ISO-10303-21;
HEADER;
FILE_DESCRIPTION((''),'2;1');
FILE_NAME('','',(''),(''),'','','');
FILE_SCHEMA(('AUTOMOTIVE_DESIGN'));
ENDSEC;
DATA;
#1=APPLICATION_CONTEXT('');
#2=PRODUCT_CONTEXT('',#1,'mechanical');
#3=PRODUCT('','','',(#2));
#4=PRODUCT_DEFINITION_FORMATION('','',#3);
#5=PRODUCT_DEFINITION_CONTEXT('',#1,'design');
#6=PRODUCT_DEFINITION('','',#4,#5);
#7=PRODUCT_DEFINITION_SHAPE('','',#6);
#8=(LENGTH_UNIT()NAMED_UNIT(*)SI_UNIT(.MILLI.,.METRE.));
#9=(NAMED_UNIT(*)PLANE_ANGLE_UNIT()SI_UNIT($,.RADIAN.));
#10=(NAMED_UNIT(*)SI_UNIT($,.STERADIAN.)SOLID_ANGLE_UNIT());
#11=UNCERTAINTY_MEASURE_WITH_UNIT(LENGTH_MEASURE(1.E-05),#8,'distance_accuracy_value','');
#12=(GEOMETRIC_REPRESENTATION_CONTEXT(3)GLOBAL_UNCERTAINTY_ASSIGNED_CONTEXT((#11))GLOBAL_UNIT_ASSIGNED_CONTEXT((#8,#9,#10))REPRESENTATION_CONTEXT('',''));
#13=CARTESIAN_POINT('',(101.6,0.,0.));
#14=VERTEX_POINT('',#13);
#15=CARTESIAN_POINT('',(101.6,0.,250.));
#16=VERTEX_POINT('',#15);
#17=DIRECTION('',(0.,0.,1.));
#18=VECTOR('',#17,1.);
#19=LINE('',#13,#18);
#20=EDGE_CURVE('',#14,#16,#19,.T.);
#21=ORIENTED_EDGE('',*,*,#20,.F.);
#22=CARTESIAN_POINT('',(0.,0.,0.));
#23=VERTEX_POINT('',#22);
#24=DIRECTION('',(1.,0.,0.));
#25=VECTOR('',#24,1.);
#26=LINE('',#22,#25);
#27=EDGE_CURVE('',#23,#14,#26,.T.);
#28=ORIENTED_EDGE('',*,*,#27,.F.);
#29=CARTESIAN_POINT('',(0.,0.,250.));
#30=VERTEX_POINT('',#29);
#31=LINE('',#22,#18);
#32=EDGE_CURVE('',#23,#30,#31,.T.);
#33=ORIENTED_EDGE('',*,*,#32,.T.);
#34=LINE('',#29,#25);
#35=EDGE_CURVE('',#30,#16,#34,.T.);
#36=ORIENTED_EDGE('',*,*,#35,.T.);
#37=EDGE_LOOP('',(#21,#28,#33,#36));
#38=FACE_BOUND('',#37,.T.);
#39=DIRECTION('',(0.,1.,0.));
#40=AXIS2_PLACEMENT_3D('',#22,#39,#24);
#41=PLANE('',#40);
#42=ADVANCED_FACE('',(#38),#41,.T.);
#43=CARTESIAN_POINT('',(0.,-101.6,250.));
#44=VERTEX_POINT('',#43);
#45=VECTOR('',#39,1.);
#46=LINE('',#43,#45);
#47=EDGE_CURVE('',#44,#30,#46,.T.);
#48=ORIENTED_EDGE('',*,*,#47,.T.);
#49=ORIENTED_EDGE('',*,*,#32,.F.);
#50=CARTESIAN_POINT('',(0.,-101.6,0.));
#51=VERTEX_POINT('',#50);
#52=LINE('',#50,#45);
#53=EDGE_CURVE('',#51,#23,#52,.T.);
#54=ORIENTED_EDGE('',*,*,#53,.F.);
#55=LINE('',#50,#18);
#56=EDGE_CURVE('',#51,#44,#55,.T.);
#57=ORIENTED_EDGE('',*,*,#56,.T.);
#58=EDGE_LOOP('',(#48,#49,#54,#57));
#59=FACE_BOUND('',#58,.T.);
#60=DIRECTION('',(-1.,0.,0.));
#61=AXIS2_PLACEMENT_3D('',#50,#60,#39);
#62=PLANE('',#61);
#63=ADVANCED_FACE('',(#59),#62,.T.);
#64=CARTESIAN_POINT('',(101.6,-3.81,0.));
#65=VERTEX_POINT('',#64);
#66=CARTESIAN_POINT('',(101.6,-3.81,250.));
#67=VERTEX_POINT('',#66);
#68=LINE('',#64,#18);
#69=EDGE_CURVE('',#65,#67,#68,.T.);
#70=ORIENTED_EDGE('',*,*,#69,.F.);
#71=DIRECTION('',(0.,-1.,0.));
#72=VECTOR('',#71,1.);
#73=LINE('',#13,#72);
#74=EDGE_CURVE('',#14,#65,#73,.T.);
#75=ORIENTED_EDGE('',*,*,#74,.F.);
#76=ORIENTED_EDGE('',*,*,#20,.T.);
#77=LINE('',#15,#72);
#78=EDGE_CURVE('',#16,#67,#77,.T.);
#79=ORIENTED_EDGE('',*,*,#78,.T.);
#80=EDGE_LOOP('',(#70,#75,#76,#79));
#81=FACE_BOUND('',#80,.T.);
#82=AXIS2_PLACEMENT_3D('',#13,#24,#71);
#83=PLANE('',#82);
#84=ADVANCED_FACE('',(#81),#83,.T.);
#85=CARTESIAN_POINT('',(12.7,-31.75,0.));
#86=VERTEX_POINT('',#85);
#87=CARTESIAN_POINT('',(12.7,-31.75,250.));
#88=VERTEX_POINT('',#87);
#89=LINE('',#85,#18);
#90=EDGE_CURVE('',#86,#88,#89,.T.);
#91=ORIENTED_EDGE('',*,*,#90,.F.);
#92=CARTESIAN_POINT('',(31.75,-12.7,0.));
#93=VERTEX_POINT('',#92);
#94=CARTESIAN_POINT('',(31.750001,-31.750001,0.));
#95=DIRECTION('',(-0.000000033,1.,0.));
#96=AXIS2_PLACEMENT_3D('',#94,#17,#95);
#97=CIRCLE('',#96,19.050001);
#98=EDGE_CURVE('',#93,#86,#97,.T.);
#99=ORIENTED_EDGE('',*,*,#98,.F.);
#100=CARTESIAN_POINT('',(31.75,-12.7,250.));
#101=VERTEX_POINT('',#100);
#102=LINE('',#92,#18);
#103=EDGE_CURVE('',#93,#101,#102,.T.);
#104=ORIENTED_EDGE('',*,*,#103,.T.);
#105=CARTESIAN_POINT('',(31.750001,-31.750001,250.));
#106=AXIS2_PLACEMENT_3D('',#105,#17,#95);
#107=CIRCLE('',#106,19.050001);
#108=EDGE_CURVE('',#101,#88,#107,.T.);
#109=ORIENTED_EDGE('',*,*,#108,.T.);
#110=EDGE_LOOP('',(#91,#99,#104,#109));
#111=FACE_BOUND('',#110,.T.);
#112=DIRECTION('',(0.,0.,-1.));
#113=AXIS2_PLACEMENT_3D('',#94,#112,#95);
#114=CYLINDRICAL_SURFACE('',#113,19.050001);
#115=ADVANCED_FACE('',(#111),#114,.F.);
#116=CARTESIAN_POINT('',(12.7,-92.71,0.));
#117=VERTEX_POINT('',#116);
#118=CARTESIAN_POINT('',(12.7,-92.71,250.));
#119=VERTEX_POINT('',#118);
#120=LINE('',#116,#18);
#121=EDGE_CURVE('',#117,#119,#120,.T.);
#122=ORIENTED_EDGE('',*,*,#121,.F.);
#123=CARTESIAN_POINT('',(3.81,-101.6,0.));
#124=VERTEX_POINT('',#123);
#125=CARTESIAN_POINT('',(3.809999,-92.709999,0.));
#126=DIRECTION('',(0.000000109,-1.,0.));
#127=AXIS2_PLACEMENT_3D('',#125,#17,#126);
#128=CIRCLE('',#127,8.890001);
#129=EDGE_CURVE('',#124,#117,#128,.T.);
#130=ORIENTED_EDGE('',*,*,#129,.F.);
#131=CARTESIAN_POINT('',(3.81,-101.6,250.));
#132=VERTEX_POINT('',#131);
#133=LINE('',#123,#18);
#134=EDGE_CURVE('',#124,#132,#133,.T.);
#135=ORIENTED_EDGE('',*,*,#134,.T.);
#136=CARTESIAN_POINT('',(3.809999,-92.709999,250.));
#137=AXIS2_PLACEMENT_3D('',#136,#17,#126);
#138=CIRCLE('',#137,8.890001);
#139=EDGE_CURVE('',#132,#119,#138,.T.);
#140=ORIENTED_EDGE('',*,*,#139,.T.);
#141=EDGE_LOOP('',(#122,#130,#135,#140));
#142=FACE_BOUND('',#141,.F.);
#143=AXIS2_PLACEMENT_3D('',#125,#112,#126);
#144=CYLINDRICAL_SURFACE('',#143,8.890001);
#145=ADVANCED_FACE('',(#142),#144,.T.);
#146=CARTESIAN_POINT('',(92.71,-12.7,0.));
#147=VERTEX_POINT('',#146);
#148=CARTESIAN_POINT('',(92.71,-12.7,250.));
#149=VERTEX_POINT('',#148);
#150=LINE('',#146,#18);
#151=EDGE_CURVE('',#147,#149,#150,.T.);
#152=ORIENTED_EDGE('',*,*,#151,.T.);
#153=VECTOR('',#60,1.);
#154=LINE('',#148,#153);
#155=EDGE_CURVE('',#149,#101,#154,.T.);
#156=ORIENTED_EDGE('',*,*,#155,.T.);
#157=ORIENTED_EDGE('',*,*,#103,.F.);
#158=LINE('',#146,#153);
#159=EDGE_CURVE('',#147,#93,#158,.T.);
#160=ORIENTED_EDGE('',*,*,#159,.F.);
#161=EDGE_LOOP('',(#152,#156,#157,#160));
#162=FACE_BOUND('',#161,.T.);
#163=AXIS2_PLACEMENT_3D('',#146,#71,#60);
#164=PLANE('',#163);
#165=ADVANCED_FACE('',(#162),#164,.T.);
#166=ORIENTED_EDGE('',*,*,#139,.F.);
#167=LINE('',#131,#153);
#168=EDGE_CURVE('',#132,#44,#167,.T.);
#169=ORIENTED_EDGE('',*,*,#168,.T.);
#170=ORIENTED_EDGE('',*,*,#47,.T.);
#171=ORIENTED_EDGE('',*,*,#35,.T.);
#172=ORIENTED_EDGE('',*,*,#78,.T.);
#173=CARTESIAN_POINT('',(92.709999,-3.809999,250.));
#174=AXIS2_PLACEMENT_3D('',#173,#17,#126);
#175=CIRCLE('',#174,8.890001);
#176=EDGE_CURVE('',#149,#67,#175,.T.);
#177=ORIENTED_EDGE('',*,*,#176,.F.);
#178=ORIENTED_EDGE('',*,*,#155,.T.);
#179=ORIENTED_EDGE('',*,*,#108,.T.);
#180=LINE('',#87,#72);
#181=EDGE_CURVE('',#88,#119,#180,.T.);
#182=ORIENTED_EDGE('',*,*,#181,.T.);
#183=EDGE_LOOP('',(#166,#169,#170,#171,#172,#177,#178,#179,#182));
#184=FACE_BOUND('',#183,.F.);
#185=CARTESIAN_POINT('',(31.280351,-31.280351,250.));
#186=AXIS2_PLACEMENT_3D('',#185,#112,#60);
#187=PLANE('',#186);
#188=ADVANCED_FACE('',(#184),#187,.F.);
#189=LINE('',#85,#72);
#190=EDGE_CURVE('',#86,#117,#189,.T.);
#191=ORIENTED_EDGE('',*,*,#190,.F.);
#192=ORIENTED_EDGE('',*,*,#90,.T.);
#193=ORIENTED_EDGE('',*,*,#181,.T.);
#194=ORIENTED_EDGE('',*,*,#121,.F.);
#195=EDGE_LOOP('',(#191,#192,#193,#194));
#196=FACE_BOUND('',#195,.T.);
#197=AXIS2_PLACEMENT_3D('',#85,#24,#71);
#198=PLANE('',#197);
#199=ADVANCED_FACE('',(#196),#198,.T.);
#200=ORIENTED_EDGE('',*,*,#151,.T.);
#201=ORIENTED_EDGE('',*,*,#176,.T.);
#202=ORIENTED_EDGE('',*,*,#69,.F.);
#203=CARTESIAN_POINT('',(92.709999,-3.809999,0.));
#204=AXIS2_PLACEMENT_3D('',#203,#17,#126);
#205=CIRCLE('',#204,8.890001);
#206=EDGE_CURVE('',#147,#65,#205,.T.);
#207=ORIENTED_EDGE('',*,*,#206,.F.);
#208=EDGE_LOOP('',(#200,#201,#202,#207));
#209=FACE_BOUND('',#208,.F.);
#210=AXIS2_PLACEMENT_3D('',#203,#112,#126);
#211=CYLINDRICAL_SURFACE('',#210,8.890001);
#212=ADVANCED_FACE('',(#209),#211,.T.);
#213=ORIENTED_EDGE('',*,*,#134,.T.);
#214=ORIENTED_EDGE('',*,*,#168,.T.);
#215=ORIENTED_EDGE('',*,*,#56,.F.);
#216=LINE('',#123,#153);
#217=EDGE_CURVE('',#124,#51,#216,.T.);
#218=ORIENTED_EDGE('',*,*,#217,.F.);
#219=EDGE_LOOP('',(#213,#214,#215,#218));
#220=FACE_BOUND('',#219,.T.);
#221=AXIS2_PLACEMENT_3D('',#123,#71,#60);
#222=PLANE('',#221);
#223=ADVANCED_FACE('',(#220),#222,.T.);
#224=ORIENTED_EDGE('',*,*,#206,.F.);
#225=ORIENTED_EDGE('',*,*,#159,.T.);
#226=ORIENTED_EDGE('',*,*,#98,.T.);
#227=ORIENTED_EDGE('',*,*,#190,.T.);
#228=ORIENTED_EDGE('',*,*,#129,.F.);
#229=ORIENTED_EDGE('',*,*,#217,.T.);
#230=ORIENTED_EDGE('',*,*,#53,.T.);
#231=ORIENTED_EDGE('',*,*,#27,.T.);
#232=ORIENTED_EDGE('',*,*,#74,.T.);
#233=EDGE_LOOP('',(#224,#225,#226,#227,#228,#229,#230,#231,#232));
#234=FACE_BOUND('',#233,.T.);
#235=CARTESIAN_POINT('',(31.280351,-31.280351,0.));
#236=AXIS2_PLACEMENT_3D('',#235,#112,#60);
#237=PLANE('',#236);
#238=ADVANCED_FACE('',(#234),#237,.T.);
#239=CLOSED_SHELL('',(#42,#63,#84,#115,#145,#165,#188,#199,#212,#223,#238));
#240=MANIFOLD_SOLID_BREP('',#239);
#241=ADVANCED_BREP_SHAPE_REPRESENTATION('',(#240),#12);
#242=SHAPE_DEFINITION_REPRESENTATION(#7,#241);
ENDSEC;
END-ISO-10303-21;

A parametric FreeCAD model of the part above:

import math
import FreeCAD as App
import Part
import Sketcher
Q = App.Units.Quantity

doc = App.newDocument("Part")
body = doc.addObject("PartDesign::Body", "Body")

sketch1 = body.newObject("Sketcher::SketchObject", "Sketch")
sketch1.AttachmentSupport = (doc.getObject("XY_Plane"), [""])
sketch1.MapMode = "FlatFace"
sketch1.addGeometry([
    Part.LineSegment(App.Vector(101.6, 0, 0), App.Vector(0, 0, 0)),
    Part.LineSegment(App.Vector(0, 0, 0), App.Vector(0, -101.6, 0)),
    Part.LineSegment(App.Vector(0, -101.6, 0), App.Vector(3.8, -101.6, 0)),
    Part.ArcOfCircle(Part.Circle(App.Vector(3.8, -92.7, 0), App.Vector(0, 0, 1), 8.9), math.radians(-90), math.radians(0)),
    Part.LineSegment(App.Vector(12.7, -92.7, 0), App.Vector(12.7, -31.8, 0)),
    Part.ArcOfCircle(Part.Circle(App.Vector(31.8, -31.8, 0), App.Vector(0, 0, 1), 19.1), math.radians(90), math.radians(180)),
    Part.LineSegment(App.Vector(31.8, -12.7, 0), App.Vector(92.7, -12.7, 0)),
    Part.ArcOfCircle(Part.Circle(App.Vector(92.7, -3.8, 0), App.Vector(0, 0, 1), 8.9), math.radians(-90), math.radians(0)),
    Part.LineSegment(App.Vector(101.6, -3.8, 0), App.Vector(101.6, 0, 0)),
], False)
sketch1.addConstraint([
    Sketcher.Constraint("Coincident", 0, 2, 1, 1),
    Sketcher.Constraint("Coincident", 1, 2, 2, 1),
    Sketcher.Constraint("Tangent", 2, 2, 3, 1),
    Sketcher.Constraint("Tangent", 3, 2, 4, 1),
    Sketcher.Constraint("Tangent", 4, 2, 5, 2),
    Sketcher.Constraint("Tangent", 5, 1, 6, 1),
    Sketcher.Constraint("Tangent", 6, 2, 7, 1),
    Sketcher.Constraint("Tangent", 7, 2, 8, 1),
    Sketcher.Constraint("Coincident", 8, 2, 0, 1),
    Sketcher.Constraint("Horizontal", 0),
    Sketcher.Constraint("Vertical", 1),
    Sketcher.Constraint("Horizontal", 2),
    Sketcher.Constraint("Vertical", 4),
    Sketcher.Constraint("Horizontal", 6),
    Sketcher.Constraint("Vertical", 8),
    Sketcher.Constraint("Coincident", 0, 2, -1, 1),
    Sketcher.Constraint("Equal", 3, 7),
    Sketcher.Constraint("Equal", 0, 1),
    Sketcher.Constraint("Equal", 6, 4),
    Sketcher.Constraint("DistanceX", 0, 2, 0, 1, Q("4 in")),
    Sketcher.Constraint("Radius", 3, Q("0.35 in")),
    Sketcher.Constraint("Radius", 5, Q("0.75 in")),
    Sketcher.Constraint("DistanceX", 6, 1, 6, 2, Q("2.4 in")),
])
pad1 = body.newObject("PartDesign::Pad", "Pad")
pad1.Profile = sketch1
pad1.Length = 250

doc.recompute()
